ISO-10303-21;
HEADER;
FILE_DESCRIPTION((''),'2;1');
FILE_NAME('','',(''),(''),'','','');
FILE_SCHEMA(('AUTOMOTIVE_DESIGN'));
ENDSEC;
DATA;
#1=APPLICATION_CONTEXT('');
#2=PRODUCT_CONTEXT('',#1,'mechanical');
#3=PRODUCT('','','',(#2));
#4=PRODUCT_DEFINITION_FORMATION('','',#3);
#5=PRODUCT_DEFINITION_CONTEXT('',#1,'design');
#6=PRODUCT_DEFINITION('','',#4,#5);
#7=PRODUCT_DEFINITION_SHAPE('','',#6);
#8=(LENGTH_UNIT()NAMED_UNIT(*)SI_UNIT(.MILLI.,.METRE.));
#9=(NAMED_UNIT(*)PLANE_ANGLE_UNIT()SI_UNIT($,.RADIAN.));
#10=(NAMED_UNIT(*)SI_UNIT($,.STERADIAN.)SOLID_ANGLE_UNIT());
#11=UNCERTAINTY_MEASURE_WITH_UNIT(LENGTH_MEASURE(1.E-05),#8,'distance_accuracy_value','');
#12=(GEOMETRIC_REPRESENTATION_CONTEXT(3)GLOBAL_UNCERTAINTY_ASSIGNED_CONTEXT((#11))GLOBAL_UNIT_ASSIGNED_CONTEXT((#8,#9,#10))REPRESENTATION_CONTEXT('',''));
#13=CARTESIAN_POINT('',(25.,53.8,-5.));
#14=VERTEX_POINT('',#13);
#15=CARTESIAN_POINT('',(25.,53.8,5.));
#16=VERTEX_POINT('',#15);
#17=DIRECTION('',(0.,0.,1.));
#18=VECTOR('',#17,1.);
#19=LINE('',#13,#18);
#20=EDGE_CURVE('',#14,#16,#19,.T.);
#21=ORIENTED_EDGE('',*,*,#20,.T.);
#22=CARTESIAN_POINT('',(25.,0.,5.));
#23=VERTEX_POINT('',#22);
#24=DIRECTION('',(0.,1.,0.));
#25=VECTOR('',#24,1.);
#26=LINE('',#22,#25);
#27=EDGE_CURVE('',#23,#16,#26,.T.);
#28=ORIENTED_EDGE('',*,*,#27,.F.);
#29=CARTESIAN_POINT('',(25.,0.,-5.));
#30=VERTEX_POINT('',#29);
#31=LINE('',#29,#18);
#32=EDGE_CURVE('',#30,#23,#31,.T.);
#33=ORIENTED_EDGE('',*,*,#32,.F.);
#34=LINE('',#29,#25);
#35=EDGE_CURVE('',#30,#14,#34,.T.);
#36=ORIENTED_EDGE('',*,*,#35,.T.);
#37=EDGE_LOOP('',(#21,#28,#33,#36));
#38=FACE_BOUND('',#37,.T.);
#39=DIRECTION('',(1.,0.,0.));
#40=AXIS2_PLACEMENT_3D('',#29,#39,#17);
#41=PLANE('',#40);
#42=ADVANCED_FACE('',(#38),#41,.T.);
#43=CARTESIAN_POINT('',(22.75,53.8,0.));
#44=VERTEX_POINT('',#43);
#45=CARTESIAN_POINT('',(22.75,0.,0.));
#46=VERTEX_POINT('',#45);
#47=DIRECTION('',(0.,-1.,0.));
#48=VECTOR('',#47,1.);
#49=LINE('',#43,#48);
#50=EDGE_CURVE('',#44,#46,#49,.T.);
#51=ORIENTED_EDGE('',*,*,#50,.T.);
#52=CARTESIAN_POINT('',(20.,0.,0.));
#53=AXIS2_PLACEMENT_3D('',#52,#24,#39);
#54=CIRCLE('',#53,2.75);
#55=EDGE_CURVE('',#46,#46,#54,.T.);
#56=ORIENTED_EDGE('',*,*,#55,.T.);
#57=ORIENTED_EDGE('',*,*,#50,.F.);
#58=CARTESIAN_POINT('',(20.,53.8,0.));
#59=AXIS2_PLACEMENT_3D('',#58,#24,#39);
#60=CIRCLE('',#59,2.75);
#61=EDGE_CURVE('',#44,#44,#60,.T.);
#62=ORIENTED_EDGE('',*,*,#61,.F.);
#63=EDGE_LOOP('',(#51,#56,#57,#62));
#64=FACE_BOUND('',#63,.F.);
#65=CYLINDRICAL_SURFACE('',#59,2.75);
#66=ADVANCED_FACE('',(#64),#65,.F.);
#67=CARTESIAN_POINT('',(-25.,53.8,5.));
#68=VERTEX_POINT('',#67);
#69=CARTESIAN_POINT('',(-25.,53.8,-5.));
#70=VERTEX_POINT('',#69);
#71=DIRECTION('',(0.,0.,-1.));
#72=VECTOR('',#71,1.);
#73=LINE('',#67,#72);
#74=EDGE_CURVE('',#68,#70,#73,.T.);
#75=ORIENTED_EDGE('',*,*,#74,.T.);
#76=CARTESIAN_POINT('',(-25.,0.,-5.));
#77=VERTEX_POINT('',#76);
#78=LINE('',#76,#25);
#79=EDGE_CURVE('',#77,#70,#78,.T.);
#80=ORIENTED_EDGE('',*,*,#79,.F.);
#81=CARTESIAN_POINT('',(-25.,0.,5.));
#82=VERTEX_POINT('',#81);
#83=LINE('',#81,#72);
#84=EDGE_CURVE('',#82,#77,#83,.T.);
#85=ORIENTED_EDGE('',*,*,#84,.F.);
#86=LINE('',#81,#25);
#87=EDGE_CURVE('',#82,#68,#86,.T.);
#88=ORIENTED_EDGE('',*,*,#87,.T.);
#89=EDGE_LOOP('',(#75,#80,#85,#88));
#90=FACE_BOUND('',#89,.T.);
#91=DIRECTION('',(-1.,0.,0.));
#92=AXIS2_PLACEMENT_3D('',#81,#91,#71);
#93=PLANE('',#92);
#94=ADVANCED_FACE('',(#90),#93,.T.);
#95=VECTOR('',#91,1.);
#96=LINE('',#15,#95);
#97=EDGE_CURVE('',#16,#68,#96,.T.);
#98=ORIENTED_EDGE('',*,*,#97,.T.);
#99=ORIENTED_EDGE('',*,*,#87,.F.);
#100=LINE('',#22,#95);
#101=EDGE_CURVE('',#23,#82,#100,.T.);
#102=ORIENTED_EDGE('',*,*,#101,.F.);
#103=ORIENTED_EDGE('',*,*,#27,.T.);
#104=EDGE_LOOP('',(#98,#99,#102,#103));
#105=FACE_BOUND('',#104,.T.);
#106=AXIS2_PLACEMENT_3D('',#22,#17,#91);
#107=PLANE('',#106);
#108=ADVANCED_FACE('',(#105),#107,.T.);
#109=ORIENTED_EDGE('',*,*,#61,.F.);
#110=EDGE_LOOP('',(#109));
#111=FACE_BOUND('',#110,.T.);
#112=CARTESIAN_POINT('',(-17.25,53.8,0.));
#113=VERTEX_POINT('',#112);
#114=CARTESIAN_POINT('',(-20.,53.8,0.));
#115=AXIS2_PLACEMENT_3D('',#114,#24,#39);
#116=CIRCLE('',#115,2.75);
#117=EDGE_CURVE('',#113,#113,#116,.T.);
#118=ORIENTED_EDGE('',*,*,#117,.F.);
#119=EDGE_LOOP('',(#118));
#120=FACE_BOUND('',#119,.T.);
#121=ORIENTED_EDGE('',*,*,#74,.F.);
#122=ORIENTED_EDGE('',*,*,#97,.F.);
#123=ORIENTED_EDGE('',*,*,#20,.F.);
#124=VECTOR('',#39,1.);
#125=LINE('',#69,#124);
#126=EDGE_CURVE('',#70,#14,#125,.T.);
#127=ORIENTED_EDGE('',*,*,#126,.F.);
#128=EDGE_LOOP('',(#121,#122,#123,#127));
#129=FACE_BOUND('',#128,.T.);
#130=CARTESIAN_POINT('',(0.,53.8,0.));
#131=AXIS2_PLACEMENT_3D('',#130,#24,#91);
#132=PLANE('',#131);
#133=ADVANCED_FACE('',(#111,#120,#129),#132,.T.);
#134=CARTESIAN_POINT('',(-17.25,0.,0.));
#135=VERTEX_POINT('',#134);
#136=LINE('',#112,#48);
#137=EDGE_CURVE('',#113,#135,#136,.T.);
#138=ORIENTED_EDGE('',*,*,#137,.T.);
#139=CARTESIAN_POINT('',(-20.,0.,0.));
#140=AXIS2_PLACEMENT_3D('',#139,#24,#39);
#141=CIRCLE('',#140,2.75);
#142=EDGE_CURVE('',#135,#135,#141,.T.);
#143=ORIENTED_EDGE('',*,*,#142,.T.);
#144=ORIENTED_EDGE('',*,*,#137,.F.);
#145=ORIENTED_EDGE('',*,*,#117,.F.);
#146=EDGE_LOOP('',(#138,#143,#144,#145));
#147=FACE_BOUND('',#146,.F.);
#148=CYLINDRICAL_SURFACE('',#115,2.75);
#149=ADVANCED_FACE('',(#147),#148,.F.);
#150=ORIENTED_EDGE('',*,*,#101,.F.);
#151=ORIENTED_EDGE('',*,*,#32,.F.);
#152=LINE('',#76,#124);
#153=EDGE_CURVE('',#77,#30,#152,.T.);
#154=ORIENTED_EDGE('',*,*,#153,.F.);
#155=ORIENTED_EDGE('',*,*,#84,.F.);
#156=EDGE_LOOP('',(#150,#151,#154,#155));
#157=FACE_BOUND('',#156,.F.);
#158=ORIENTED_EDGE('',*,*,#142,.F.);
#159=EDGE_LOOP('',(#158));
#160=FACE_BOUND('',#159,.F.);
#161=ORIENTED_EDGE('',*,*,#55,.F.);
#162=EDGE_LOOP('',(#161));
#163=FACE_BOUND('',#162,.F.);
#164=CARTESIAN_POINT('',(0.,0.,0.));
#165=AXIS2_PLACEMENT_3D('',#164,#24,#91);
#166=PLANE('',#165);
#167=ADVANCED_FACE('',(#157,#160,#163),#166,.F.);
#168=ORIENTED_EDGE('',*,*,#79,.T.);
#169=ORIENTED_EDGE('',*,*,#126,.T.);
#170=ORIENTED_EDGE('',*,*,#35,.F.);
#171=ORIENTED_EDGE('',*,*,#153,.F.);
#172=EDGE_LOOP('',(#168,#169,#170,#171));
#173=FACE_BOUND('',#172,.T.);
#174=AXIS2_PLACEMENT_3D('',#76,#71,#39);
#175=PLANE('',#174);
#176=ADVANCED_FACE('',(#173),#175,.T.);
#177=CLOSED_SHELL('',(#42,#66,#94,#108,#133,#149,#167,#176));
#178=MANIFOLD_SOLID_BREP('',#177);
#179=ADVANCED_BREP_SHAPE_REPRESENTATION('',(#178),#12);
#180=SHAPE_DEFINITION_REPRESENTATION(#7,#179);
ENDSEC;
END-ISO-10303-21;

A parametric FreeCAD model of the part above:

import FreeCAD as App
import Part
import Sketcher
from FreeCAD import Vector
Q = App.Units.Quantity


def add_polygon(sketch, points):
    """Adds a closed chain of lines whose ends are joined by coincident constraints."""
    first, n = sketch.GeometryCount, len(points)
    for a, b in zip(points, points[1:] + points[:1]):
        sketch.addGeometry(Part.LineSegment(App.Vector(*a, 0), App.Vector(*b, 0)), False)
    for i in range(n):
        sketch.addConstraint(Sketcher.Constraint("Coincident", first + i, 2, first + (i + 1) % n, 1))

doc = App.newDocument("Part")
body = doc.addObject("PartDesign::Body", "Body")

# Sketch on XZ plane
sketch1 = doc.addObject("Sketcher::SketchObject", "Sketch")
body.addObject(sketch1)
sketch1.AttachmentSupport = (doc.XZ_Plane, [""])
sketch1.MapMode = "FlatFace"
add_polygon(sketch1, [(-25, 5), (25, 5), (25, -5), (-25, -5)])  # lines 0-3
sketch1.addConstraint(Sketcher.Constraint("Horizontal", 0))
sketch1.addConstraint(Sketcher.Constraint("Vertical", 1))
sketch1.addConstraint(Sketcher.Constraint("Horizontal", 2))
sketch1.addConstraint(Sketcher.Constraint("Vertical", 3))
sketch1.addConstraint(Sketcher.Constraint("Symmetric", 0, 2, 2, 2, -1, 1))
sketch1.addConstraint(Sketcher.Constraint("DistanceX", 0, 1, 0, 2, Q("50 mm")))
sketch1.addConstraint(Sketcher.Constraint("DistanceY", 1, 2, 1, 1, Q("10 mm")))
pad1 = doc.addObject("PartDesign::Pad", "Pad")
body.addObject(pad1)
pad1.Profile = sketch1
pad1.Length = 53.8
pad1.Reversed = True

# Sketch on XZ plane
sketch2 = doc.addObject("Sketcher::SketchObject", "Sketch001")
body.addObject(sketch2)
sketch2.AttachmentSupport = (doc.XZ_Plane, [""])
sketch2.MapMode = "FlatFace"
sketch2.AttachmentOffset = App.Placement(Vector(0, 0, -53.8), App.Rotation())
sketch2.addGeometry(Part.Circle(Vector(-20, 0, 0), Vector(0, 0, 1), 2.8), False)
sketch2.addGeometry(Part.Circle(Vector(20, 0, 0), Vector(0, 0, 1), 2.8), False)
sketch2.addConstraint(Sketcher.Constraint("Equal", 0, 1))
sketch2.addConstraint(Sketcher.Constraint("Symmetric", 0, 3, 1, 3, -1, 1))
sketch2.addConstraint(Sketcher.Constraint("PointOnObject", 0, 3, -1))
sketch2.addConstraint(Sketcher.Constraint("Diameter", 0, Q("5.5 mm")))
sketch2.addConstraint(Sketcher.Constraint("DistanceX", 0, 3, -1, 1, Q("20 mm")))
pocket1 = doc.addObject("PartDesign::Pocket", "Pocket")
body.addObject(pocket1)
pocket1.Profile = sketch2
pocket1.Length = 53.8
pocket1.Reversed = True

doc.recompute()
